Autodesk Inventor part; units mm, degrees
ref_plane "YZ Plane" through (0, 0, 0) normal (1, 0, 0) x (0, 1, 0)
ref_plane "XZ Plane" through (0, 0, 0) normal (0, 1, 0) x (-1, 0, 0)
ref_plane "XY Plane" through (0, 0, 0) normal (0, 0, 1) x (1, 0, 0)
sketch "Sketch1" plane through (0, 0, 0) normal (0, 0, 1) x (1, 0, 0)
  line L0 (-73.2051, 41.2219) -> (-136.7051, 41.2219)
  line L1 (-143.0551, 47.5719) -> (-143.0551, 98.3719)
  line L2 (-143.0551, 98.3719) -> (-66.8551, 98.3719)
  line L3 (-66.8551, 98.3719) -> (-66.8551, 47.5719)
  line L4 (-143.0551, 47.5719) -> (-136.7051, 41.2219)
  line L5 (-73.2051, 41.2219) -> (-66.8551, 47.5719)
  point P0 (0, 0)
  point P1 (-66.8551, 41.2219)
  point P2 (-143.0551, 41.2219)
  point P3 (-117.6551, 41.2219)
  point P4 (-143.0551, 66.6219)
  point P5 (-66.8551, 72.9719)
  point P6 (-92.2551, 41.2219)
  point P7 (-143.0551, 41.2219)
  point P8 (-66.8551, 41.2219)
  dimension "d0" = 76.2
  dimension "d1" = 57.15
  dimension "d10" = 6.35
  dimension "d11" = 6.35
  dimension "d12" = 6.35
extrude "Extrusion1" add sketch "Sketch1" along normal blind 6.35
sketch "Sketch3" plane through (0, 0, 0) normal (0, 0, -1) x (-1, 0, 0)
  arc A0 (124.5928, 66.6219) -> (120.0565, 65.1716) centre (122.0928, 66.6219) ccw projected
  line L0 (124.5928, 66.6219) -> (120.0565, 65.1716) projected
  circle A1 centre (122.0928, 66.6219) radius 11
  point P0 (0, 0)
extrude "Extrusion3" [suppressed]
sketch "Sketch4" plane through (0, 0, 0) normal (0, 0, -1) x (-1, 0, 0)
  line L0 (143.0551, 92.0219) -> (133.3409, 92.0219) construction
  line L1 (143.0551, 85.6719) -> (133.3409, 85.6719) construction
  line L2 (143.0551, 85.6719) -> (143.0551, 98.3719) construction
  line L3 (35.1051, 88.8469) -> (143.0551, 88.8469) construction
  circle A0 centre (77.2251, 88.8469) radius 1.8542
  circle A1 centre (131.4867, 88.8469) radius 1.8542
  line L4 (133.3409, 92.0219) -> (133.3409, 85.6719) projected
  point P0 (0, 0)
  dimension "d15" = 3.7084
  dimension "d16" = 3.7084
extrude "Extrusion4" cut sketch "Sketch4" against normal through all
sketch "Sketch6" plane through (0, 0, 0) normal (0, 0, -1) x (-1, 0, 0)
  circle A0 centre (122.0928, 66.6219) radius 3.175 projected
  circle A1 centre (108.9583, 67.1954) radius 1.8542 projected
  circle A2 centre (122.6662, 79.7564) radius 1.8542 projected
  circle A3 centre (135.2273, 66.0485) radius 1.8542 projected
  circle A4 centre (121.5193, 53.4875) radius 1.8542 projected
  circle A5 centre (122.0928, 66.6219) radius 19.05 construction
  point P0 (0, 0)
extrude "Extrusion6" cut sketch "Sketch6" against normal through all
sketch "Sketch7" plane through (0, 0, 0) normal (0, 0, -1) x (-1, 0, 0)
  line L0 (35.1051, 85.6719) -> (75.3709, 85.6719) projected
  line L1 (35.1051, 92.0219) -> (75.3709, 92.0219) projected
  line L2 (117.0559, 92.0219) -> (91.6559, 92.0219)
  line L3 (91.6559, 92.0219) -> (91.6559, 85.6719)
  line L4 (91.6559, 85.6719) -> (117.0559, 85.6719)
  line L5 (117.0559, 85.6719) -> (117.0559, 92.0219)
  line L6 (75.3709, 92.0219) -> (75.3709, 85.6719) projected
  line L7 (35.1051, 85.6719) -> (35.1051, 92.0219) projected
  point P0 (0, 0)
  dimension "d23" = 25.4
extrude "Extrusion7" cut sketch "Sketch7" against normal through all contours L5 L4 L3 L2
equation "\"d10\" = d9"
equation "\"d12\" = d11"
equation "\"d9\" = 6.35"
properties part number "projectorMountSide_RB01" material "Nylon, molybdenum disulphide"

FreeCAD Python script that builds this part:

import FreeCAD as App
import Part
import Sketcher
from FreeCAD import Vector
Q = App.Units.Quantity


def add_polygon(sketch, points):
    """Adds a closed chain of lines whose ends are joined by coincident constraints."""
    first, n = sketch.GeometryCount, len(points)
    for a, b in zip(points, points[1:] + points[:1]):
        sketch.addGeometry(Part.LineSegment(App.Vector(*a, 0), App.Vector(*b, 0)), False)
    for i in range(n):
        sketch.addConstraint(Sketcher.Constraint("Coincident", first + i, 2, first + (i + 1) % n, 1))

doc = App.newDocument("Part")
body = doc.addObject("PartDesign::Body", "Body")

# Sketch on XY plane
sketch1 = body.newObject("Sketcher::SketchObject", "Sketch")
sketch1.AttachmentSupport = (doc.getObject("XY_Plane"), [""])
sketch1.MapMode = "FlatFace"
add_polygon(sketch1, [(-136.7051, 41.2219), (-73.2051, 41.2219), (-66.8551, 47.5719), (-66.8551, 98.3719), (-143.0551, 98.3719), (-143.0551, 47.5719)])  # lines 0-5
sketch1.addConstraint(Sketcher.Constraint("Horizontal", 0))
sketch1.addConstraint(Sketcher.Constraint("Vertical", 2))
sketch1.addConstraint(Sketcher.Constraint("Horizontal", 3))
sketch1.addConstraint(Sketcher.Constraint("Vertical", 4))
sketch1.addConstraint(Sketcher.Constraint("Perpendicular", 1, 5))
sketch1.addConstraint(Sketcher.Constraint("Horizontal", 1, 2, 4, 2))
sketch1.addConstraint(Sketcher.Constraint("Equal", 1, 5))
sketch1.addConstraint(Sketcher.Constraint("DistanceX", 3, 2, 3, 1, Q("3 in")))
sketch1.addConstraint(Sketcher.Constraint("DistanceY", 2, 1, 2, 2, Q("2 in")))
sketch1.addConstraint(Sketcher.Constraint("DistanceX", 0, 2, 1, 2, Q("0.25 in")))
sketch1.addConstraint(Sketcher.Constraint("DistanceX", 0, 2, -1, 1, Q("2.8821 in")))
sketch1.addConstraint(Sketcher.Constraint("DistanceY", -1, 1, 0, 2, Q("1.6229 in")))
pad1 = body.newObject("PartDesign::Pad", "Pad")
pad1.Profile = sketch1
pad1.Length = Q("0.25 in")

# Sketch on XY plane
sketch2 = body.newObject("Sketcher::SketchObject", "Sketch001")
sketch2.AttachmentSupport = (doc.getObject("XY_Plane"), [""])
sketch2.MapMode = "FlatFace"
sketch2.addGeometry(Part.Circle(Vector(-77.2251, 88.8469, 0), Vector(0, 0, 1), 1.8542), False)
sketch2.addGeometry(Part.Circle(Vector(-131.4867, 88.8469, 0), Vector(0, 0, 1), 1.8542), False)
sketch2.addConstraint(Sketcher.Constraint("Equal", 0, 1))
sketch2.addConstraint(Sketcher.Constraint("Horizontal", 0, 3, 1, 3))
sketch2.addConstraint(Sketcher.Constraint("Diameter", 0, Q("0.146 in")))
sketch2.addConstraint(Sketcher.Constraint("DistanceY", -1, 1, 0, 3, Q("3.4979 in")))
sketch2.addConstraint(Sketcher.Constraint("DistanceX", 0, 3, -1, 1, Q("77.225 mm")))
sketch2.addConstraint(Sketcher.Constraint("DistanceX", 1, 3, -1, 1, Q("131.4867 mm")))
pocket1 = body.newObject("PartDesign::Pocket", "Pocket")
pocket1.Profile = sketch2
pocket1.Type = "ThroughAll"
pocket1.Reversed = True

# Sketch on XY plane
sketch3 = body.newObject("Sketcher::SketchObject", "Sketch002")
sketch3.AttachmentSupport = (doc.getObject("XY_Plane"), [""])
sketch3.MapMode = "FlatFace"
sketch3.addGeometry(Part.Circle(Vector(-122.0928, 66.6219, 0), Vector(0, 0, 1), 3.175), False)
sketch3.addGeometry(Part.Circle(Vector(-108.9583, 67.1954, 0), Vector(0, 0, 1), 1.8542), False)
sketch3.addGeometry(Part.Circle(Vector(-122.6662, 79.7564, 0), Vector(0, 0, 1), 1.8542), False)
sketch3.addGeometry(Part.Circle(Vector(-135.2273, 66.0485, 0), Vector(0, 0, 1), 1.8542), False)
sketch3.addGeometry(Part.Circle(Vector(-121.5193, 53.4875, 0), Vector(0, 0, 1), 1.8542), False)
sketch3.addConstraint(Sketcher.Constraint("Equal", 1, 2))
sketch3.addConstraint(Sketcher.Constraint("Equal", 2, 3))
sketch3.addConstraint(Sketcher.Constraint("Equal", 3, 4))
sketch3.addConstraint(Sketcher.Constraint("Diameter", 0, Q("0.25 in")))
sketch3.addConstraint(Sketcher.Constraint("Diameter", 1, Q("0.146 in")))
sketch3.addConstraint(Sketcher.Constraint("DistanceX", 0, 3, -1, 1, Q("4.8068 in")))
sketch3.addConstraint(Sketcher.Constraint("DistanceY", -1, 1, 0, 3, Q("2.6229 in")))
sketch3.addConstraint(Sketcher.Constraint("DistanceX", 1, 3, -1, 1, Q("4.2897 in")))
sketch3.addConstraint(Sketcher.Constraint("DistanceY", -1, 1, 1, 3, Q("2.6455 in")))
sketch3.addConstraint(Sketcher.Constraint("DistanceX", 3, 3, -1, 1, Q("5.3239 in")))
sketch3.addConstraint(Sketcher.Constraint("DistanceY", -1, 1, 4, 3, Q("2.1058 in")))
sketch3.addConstraint(Sketcher.Constraint("DistanceY", 0, 3, 2, 3, Q("0.5171 in")))
sketch3.addConstraint(Sketcher.Constraint("DistanceX", 2, 3, -1, 1, Q("122.6662 mm")))
sketch3.addConstraint(Sketcher.Constraint("DistanceY", -1, 1, 3, 3, Q("66.0485 mm")))
sketch3.addConstraint(Sketcher.Constraint("DistanceX", 4, 3, -1, 1, Q("121.5193 mm")))
pocket2 = body.newObject("PartDesign::Pocket", "Pocket001")
pocket2.Profile = sketch3
pocket2.Type = "ThroughAll"
pocket2.Reversed = True

# Sketch on XY plane
sketch4 = body.newObject("Sketcher::SketchObject", "Sketch003")
sketch4.AttachmentSupport = (doc.getObject("XY_Plane"), [""])
sketch4.MapMode = "FlatFace"
add_polygon(sketch4, [(-117.0559, 85.6719), (-117.0559, 92.0219), (-91.6559, 92.0219), (-91.6559, 85.6719)])  # lines 0-3
sketch4.addConstraint(Sketcher.Constraint("Vertical", 0))
sketch4.addConstraint(Sketcher.Constraint("Horizontal", 1))
sketch4.addConstraint(Sketcher.Constraint("Vertical", 2))
sketch4.addConstraint(Sketcher.Constraint("Horizontal", 3))
sketch4.addConstraint(Sketcher.Constraint("DistanceX", 1, 1, 1, 2, Q("1 in")))
sketch4.addConstraint(Sketcher.Constraint("DistanceY", 0, 1, 0, 2, Q("0.25 in")))
sketch4.addConstraint(Sketcher.Constraint("DistanceX", 0, 2, -1, 1, Q("4.6085 in")))
sketch4.addConstraint(Sketcher.Constraint("DistanceY", -1, 1, 0, 2, Q("3.6229 in")))
pocket3 = body.newObject("PartDesign::Pocket", "Pocket002")
pocket3.Profile = sketch4
pocket3.Type = "ThroughAll"
pocket3.Reversed = True

doc.recompute()
